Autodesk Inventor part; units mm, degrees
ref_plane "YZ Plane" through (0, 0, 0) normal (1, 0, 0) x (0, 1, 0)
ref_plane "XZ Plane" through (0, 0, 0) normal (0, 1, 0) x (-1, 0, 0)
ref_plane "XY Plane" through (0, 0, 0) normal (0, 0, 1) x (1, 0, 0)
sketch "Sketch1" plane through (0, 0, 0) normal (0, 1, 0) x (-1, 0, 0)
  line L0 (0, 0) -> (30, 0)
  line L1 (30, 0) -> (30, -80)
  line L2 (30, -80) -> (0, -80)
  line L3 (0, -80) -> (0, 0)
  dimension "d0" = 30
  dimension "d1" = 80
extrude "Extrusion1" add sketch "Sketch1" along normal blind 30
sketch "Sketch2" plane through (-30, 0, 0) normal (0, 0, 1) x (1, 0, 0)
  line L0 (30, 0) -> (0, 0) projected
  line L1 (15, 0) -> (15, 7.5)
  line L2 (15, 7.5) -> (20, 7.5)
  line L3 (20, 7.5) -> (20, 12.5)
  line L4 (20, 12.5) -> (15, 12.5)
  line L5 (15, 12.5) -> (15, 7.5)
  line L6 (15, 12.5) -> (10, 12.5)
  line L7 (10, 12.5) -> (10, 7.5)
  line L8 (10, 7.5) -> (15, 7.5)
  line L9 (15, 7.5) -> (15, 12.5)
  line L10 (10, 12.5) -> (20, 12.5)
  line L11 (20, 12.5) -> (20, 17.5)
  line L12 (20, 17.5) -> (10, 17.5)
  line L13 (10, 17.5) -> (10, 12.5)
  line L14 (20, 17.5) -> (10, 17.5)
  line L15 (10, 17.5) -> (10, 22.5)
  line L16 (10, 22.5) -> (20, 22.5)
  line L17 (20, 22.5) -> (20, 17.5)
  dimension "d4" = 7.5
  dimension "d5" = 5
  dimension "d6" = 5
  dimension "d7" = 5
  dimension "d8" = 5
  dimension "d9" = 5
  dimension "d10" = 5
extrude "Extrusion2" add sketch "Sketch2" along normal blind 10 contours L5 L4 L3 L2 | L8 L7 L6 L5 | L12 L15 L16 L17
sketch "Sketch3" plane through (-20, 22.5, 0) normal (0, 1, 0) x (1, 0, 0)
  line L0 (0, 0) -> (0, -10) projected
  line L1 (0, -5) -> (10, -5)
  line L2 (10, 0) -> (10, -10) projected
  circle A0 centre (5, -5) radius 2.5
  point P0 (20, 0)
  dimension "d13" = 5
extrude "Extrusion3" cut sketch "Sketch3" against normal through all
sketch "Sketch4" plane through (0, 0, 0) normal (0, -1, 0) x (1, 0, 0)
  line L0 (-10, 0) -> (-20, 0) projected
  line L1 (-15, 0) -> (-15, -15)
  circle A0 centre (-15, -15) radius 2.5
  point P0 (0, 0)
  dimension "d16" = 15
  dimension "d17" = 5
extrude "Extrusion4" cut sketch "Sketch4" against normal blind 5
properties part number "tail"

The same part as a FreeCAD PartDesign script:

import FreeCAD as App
import Part
import Sketcher

V = App.Vector

doc = App.newDocument("Part")
body = doc.addObject("PartDesign::Body", "Body")

# Sketch on XZ plane
sketch1 = body.newObject("Sketcher::SketchObject", "Sketch")
sketch1.AttachmentSupport = (doc.getObject("XZ_Plane"), [""])
sketch1.MapMode = "FlatFace"
sketch1.addGeometry([
    Part.LineSegment(V(-30, 0, 0), V(0, 0, 0)),
    Part.LineSegment(V(0, 0, 0), V(0, -80, 0)),
    Part.LineSegment(V(0, -80, 0), V(-30, -80, 0)),
    Part.LineSegment(V(-30, -80, 0), V(-30, 0, 0)),
], False)
sketch1.addConstraint([
    Sketcher.Constraint("Coincident", 0, 2, 1, 1),
    Sketcher.Constraint("Coincident", 1, 2, 2, 1),
    Sketcher.Constraint("Coincident", 2, 2, 3, 1),
    Sketcher.Constraint("Coincident", 3, 2, 0, 1),
    Sketcher.Constraint("Horizontal", 0),
    Sketcher.Constraint("Vertical", 1),
    Sketcher.Constraint("Horizontal", 2),
    Sketcher.Constraint("Vertical", 3),
    Sketcher.Constraint("Coincident", 0, 2, -1, 1),
    Sketcher.Constraint("DistanceX", 0, 1, 0, 2, 30.0),
    Sketcher.Constraint("DistanceY", 1, 2, 1, 1, 80.0),
])
pad1 = body.newObject("PartDesign::Pad", "Pad")
pad1.Profile = sketch1
pad1.Length = 30
pad1.Reversed = True

# Sketch on XY plane
sketch2 = body.newObject("Sketcher::SketchObject", "Sketch001")
sketch2.AttachmentSupport = (doc.getObject("XY_Plane"), [""])
sketch2.MapMode = "FlatFace"
sketch2.addGeometry([
    Part.LineSegment(V(-10, 12, 0), V(-20, 12, 0)),  # 0
    Part.LineSegment(V(-20, 12, 0), V(-20, 8, 0)),  # 1
    Part.LineSegment(V(-20, 8, 0), V(-10, 8, 0)),  # 2
    Part.LineSegment(V(-10, 8, 0), V(-10, 12, 0)),  # 3
    Part.LineSegment(V(-20, 18, 0), V(-10, 18, 0)),  # 4
    Part.LineSegment(V(-10, 18, 0), V(-10, 22, 0)),  # 5
    Part.LineSegment(V(-10, 22, 0), V(-20, 22, 0)),  # 6
    Part.LineSegment(V(-20, 22, 0), V(-20, 18, 0)),  # 7
], False)
sketch2.addConstraint([
    Sketcher.Constraint("Coincident", 0, 2, 1, 1),
    Sketcher.Constraint("Coincident", 1, 2, 2, 1),
    Sketcher.Constraint("Coincident", 2, 2, 3, 1),
    Sketcher.Constraint("Coincident", 3, 2, 0, 1),
    Sketcher.Constraint("Coincident", 4, 2, 5, 1),
    Sketcher.Constraint("Coincident", 5, 2, 6, 1),
    Sketcher.Constraint("Coincident", 6, 2, 7, 1),
    Sketcher.Constraint("Coincident", 7, 2, 4, 1),
    Sketcher.Constraint("Horizontal", 0),
    Sketcher.Constraint("Vertical", 1),
    Sketcher.Constraint("Horizontal", 2),
    Sketcher.Constraint("Vertical", 3),
    Sketcher.Constraint("Horizontal", 4),
    Sketcher.Constraint("Vertical", 5),
    Sketcher.Constraint("Horizontal", 6),
    Sketcher.Constraint("Vertical", 7),
    Sketcher.Constraint("Vertical", 3, 2, 4, 2),
    Sketcher.Constraint("Vertical", 1, 2, 6, 2),
    Sketcher.Constraint("Equal", 3, 5),
    Sketcher.Constraint("DistanceY", 1, 2, 1, 1, 5.0),
    Sketcher.Constraint("DistanceY", 3, 2, 4, 2, 5.0),
    Sketcher.Constraint("DistanceY", -1, 1, 1, 2, 7.5),
    Sketcher.Constraint("DistanceX", 0, 2, 0, 1, 10.0),
    Sketcher.Constraint("DistanceX", 0, 2, -1, 1, 20.0),
])
pad2 = body.newObject("PartDesign::Pad", "Pad001")
pad2.Profile = sketch2
pad2.Length = 10

# Sketch on XZ plane
sketch3 = body.newObject("Sketcher::SketchObject", "Sketch002")
sketch3.AttachmentSupport = (doc.getObject("XZ_Plane"), [""])
sketch3.MapMode = "FlatFace"
sketch3.AttachmentOffset = App.Placement(V(0, 0, -22.5), App.Rotation())
sketch3.addGeometry(Part.Circle(V(-15, 5, 0), V(0, 0, 1), 2.5), False)
sketch3.addConstraint([
    Sketcher.Constraint("Diameter", 0, 5.0),
    Sketcher.Constraint("DistanceY", -1, 1, 0, 3, 5.0),
    Sketcher.Constraint("DistanceX", 0, 3, -1, 1, 15.0),
])
pocket1 = body.newObject("PartDesign::Pocket", "Pocket")
pocket1.Profile = sketch3
pocket1.Type = "ThroughAll"
pocket1.Reversed = True

# Sketch on XZ plane
sketch4 = body.newObject("Sketcher::SketchObject", "Sketch003")
sketch4.AttachmentSupport = (doc.getObject("XZ_Plane"), [""])
sketch4.MapMode = "FlatFace"
sketch4.addGeometry(Part.Circle(V(-15, -15, 0), V(0, 0, 1), 2.5), False)
sketch4.addConstraint([
    Sketcher.Constraint("Diameter", 0, 5.0),
    Sketcher.Constraint("DistanceX", 0, 3, -1, 1, 15.0),
    Sketcher.Constraint("DistanceY", 0, 3, -1, 1, 15.0),
])
pocket2 = body.newObject("PartDesign::Pocket", "Pocket001")
pocket2.Profile = sketch4
pocket2.Length = 5

doc.recompute()
